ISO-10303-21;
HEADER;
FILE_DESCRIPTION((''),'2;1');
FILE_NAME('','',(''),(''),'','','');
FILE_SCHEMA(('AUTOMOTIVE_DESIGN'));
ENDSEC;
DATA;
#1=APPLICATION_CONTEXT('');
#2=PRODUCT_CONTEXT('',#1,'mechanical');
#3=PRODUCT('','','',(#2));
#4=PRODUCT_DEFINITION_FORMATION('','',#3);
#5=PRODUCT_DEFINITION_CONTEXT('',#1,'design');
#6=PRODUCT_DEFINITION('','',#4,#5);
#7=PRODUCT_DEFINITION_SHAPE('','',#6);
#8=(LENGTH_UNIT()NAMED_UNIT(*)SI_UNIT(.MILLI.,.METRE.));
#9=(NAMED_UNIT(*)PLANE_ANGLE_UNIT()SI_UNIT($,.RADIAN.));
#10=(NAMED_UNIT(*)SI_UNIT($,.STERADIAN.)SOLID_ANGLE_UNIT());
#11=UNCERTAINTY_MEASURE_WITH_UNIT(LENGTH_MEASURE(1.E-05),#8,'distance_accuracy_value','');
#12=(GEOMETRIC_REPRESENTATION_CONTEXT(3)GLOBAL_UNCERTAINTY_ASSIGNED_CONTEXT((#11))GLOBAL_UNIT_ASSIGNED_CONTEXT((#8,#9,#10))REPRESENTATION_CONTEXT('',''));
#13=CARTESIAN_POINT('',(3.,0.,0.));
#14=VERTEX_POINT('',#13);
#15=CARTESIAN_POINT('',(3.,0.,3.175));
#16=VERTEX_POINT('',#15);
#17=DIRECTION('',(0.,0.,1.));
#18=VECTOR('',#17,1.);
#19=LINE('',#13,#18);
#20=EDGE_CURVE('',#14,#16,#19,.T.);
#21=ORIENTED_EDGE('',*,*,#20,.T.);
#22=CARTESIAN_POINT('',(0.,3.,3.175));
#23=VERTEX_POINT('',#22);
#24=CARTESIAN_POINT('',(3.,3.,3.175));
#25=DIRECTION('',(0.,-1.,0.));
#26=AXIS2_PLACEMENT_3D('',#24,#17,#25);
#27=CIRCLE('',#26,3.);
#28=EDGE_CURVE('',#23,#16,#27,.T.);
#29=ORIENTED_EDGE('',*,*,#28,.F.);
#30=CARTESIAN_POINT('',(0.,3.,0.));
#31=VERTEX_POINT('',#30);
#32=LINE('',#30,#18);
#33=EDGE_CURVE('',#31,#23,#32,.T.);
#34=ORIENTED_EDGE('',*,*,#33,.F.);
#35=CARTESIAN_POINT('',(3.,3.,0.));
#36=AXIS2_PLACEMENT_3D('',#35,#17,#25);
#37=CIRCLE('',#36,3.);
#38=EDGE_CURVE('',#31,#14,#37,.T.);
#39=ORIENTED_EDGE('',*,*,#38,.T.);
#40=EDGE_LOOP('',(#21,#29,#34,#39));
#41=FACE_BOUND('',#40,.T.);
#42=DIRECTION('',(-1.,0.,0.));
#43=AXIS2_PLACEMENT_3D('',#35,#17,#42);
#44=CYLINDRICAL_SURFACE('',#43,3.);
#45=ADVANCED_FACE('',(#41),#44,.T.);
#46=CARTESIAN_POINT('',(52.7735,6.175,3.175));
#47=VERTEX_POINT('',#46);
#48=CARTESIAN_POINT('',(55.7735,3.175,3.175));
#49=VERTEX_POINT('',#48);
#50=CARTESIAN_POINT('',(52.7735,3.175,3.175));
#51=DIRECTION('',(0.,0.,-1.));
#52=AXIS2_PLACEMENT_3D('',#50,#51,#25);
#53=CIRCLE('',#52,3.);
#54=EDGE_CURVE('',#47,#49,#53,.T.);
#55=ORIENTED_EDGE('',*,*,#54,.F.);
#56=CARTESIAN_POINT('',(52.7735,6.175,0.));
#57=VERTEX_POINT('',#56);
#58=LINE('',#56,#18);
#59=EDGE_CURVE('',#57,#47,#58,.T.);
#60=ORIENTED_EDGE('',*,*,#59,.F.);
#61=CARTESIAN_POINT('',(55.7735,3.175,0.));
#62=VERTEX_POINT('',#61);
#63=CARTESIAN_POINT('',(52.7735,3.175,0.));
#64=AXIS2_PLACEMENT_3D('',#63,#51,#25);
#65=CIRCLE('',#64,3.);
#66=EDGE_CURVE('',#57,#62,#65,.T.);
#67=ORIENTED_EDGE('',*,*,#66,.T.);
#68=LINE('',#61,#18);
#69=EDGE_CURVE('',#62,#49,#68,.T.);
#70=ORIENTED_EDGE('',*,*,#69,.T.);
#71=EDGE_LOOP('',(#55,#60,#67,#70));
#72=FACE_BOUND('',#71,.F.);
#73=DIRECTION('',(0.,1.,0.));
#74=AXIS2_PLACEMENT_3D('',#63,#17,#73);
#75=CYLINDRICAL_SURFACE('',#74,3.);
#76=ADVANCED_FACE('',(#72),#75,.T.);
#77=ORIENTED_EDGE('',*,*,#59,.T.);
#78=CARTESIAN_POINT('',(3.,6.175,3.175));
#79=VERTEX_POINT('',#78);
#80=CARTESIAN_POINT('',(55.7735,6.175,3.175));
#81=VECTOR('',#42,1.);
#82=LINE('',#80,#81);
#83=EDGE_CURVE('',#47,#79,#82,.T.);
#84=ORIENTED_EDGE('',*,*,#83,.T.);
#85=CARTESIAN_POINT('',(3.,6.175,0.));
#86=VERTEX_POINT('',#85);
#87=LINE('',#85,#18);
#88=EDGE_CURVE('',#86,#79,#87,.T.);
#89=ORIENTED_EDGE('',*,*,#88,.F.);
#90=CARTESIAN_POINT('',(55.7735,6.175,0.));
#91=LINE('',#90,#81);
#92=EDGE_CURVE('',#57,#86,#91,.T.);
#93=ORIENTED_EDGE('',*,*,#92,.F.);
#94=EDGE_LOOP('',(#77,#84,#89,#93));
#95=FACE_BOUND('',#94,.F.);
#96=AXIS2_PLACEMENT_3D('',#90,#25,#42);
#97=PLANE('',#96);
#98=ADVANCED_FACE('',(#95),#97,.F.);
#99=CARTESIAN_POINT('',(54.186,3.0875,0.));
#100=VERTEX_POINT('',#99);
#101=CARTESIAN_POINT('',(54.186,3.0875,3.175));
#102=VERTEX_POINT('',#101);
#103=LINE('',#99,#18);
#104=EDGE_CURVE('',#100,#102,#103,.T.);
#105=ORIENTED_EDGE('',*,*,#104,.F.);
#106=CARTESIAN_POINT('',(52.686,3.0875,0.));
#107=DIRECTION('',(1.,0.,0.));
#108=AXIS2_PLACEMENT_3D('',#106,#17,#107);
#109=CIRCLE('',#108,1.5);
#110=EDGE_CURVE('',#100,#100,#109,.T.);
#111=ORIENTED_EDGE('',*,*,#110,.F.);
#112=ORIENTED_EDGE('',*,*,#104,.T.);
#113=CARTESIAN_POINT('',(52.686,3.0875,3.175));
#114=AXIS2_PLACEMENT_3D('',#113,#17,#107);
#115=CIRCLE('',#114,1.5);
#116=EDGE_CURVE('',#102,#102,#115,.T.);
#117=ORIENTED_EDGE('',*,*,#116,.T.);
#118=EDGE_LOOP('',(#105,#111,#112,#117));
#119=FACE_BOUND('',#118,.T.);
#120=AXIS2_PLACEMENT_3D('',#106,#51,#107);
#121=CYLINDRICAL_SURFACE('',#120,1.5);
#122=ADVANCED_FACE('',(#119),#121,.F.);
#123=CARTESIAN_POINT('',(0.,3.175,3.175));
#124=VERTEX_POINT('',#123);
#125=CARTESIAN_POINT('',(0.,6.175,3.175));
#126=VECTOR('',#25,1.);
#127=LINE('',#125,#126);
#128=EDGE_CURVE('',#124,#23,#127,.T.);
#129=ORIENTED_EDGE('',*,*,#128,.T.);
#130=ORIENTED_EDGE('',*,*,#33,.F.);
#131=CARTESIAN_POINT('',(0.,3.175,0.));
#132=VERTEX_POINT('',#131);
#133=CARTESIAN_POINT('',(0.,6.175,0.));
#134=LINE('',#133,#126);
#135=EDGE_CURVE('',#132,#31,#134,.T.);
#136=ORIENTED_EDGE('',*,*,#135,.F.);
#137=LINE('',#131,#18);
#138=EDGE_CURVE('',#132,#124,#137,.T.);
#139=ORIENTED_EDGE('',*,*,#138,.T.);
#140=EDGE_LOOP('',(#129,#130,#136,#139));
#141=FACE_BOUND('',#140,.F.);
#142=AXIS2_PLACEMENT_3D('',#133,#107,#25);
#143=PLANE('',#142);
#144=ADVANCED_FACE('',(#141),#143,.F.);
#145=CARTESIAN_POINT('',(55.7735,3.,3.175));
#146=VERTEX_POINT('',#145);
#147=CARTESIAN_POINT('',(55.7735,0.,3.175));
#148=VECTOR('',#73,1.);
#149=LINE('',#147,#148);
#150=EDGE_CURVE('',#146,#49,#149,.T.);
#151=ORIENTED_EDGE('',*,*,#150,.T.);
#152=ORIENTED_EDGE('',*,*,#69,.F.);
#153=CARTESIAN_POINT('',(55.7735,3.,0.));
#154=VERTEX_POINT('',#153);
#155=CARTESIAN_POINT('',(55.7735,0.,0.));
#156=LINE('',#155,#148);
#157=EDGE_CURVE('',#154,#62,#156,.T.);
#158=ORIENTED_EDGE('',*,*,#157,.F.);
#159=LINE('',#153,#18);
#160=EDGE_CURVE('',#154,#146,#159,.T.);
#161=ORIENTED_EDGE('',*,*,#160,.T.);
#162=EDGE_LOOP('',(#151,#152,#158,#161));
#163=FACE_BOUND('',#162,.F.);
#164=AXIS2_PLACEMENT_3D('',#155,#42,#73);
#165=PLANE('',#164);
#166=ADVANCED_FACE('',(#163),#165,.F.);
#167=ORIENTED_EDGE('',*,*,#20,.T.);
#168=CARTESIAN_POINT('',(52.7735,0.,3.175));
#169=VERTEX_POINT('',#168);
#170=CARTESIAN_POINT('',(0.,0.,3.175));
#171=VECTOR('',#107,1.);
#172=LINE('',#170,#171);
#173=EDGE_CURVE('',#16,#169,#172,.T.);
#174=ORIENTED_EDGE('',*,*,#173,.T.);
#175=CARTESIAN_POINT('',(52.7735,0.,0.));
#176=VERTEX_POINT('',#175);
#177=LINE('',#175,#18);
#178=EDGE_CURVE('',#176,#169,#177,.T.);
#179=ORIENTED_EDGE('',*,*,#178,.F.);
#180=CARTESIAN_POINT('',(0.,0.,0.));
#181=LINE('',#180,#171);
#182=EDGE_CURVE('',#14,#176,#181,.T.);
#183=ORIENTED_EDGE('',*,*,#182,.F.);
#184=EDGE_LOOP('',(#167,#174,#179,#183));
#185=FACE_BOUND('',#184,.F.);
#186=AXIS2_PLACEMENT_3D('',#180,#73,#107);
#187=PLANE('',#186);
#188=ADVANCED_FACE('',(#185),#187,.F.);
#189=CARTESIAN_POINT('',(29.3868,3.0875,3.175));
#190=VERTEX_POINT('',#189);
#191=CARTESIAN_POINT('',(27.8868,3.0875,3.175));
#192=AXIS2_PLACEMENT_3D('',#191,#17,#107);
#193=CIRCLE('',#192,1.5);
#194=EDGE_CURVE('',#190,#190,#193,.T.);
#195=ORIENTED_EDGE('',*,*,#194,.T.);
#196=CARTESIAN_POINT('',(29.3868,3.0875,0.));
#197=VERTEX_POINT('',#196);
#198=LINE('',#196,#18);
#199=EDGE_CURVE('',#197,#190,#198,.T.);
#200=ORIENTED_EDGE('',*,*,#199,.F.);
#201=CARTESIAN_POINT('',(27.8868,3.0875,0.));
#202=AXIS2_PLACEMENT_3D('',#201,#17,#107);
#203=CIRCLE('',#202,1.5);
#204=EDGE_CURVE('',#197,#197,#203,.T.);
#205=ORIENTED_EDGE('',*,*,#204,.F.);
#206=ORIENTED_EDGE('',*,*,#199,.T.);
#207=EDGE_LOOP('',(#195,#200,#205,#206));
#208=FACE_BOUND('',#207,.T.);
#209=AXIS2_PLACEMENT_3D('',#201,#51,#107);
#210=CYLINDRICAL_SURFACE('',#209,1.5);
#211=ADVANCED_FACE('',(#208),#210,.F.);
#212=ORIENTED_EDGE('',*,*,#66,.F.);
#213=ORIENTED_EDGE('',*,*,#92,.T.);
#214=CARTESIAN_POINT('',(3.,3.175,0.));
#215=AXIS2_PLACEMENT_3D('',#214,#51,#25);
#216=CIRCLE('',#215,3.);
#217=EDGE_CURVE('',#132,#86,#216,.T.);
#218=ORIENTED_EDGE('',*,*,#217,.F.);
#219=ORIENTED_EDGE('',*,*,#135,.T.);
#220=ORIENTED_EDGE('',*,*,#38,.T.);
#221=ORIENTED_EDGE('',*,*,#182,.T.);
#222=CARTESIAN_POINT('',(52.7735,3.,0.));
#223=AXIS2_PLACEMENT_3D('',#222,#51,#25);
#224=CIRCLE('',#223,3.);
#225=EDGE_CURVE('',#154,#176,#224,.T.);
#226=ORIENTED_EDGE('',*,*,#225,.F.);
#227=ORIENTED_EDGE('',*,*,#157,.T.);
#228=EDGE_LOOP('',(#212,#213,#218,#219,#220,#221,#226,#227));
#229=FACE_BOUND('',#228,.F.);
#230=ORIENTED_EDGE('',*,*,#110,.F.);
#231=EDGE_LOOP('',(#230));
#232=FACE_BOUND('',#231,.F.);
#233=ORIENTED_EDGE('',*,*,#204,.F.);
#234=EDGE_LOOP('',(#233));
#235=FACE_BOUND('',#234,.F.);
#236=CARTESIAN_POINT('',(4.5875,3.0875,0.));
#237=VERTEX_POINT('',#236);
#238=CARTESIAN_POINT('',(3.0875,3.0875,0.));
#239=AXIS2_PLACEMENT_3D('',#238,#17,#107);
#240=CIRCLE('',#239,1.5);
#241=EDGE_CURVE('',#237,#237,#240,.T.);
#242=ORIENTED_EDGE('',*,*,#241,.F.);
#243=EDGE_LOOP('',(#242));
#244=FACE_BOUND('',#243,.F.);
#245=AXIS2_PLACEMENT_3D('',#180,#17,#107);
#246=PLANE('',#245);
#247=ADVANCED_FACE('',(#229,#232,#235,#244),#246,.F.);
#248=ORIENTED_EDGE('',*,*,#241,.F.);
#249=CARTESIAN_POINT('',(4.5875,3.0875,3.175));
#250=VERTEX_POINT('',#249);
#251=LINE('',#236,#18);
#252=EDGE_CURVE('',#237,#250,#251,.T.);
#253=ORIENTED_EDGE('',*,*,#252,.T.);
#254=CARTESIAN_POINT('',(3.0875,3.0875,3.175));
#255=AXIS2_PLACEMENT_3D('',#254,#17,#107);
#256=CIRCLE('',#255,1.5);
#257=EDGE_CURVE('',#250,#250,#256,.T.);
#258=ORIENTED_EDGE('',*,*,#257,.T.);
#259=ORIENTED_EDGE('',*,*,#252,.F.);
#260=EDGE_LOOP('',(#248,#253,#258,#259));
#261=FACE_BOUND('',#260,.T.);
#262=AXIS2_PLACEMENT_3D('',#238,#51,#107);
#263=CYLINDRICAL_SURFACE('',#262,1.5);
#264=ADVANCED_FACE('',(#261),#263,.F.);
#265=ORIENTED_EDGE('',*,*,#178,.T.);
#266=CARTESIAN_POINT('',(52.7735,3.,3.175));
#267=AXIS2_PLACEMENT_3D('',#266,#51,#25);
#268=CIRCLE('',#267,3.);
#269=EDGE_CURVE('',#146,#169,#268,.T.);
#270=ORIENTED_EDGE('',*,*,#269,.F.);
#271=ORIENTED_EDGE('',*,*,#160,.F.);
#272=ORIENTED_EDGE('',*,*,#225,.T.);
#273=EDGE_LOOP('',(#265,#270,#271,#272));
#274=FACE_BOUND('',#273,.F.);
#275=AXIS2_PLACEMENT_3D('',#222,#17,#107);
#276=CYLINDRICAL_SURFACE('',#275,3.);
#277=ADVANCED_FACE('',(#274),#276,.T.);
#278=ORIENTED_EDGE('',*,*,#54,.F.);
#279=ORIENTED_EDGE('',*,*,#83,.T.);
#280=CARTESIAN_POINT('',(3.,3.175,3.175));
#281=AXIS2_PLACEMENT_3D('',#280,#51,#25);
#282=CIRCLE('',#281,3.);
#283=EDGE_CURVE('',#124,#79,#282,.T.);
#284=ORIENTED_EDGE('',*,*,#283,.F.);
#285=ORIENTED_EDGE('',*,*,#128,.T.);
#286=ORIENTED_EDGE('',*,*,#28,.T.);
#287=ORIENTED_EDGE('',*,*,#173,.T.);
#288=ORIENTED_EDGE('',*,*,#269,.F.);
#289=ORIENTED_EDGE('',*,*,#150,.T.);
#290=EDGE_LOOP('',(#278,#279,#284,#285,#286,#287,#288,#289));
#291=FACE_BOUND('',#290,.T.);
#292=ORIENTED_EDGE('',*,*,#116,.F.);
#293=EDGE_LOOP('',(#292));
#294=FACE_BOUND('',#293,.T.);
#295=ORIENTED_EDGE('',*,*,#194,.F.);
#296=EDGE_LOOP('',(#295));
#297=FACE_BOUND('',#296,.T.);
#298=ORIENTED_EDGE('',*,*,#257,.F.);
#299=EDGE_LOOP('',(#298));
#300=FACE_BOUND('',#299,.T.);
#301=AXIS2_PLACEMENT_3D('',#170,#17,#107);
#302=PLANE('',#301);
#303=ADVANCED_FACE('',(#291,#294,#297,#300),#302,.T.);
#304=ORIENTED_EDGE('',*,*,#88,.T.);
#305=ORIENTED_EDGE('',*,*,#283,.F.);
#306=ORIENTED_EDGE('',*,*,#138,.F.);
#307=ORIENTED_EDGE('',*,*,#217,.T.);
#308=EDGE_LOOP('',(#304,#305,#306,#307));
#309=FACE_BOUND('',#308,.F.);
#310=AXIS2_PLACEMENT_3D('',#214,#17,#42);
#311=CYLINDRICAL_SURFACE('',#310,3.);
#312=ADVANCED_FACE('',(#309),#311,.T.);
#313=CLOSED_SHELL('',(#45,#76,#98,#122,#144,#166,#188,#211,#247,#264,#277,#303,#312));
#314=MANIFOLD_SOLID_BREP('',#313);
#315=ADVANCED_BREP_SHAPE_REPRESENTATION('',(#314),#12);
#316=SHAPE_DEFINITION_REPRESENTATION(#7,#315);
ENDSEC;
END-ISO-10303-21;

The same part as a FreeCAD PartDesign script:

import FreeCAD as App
import Part
import Sketcher
Q = App.Units.Quantity


def edges_at(feature, points):
    """Names of the edges that pass closest to the given points."""
    edges = feature.Shape.Edges
    near = lambda p: min(range(len(edges)), key=lambda i: edges[i].distToShape(Part.Vertex(*p))[0])
    return sorted({f"Edge{near(p) + 1}" for p in points})


def add_polygon(sketch, points):
    """Adds a closed chain of lines whose ends are joined by coincident constraints."""
    first, n = sketch.GeometryCount, len(points)
    for a, b in zip(points, points[1:] + points[:1]):
        sketch.addGeometry(Part.LineSegment(App.Vector(*a, 0), App.Vector(*b, 0)), False)
    for i in range(n):
        sketch.addConstraint(Sketcher.Constraint("Coincident", first + i, 2, first + (i + 1) % n, 1))

doc = App.newDocument("Part")
body = doc.addObject("PartDesign::Body", "Body")

# Sketch on XY plane
sketch1 = doc.addObject("Sketcher::SketchObject", "Sketch")
body.addObject(sketch1)
sketch1.AttachmentSupport = (doc.XY_Plane, [""])
sketch1.MapMode = "FlatFace"
add_polygon(sketch1, [(0, 6.2), (0, 0), (55.8, 0), (55.8, 6.2)])  # lines 0-3
sketch1.addGeometry(Part.Circle(App.Vector(3.1, 3.1, 0), App.Vector(0, 0, 1), 1.5), False)  # 4
sketch1.addGeometry(Part.Circle(App.Vector(27.9, 3.1, 0), App.Vector(0, 0, 1), 1.5), False)  # 5
sketch1.addGeometry(Part.Circle(App.Vector(52.7, 3.1, 0), App.Vector(0, 0, 1), 1.5), False)  # 6
sketch1.addConstraint([
    Sketcher.Constraint("Vertical", 0),
    Sketcher.Constraint("Horizontal", 1),
    Sketcher.Constraint("Vertical", 2),
    Sketcher.Constraint("Horizontal", 3),
    Sketcher.Constraint("Coincident", 0, 2, -1, 1),
    Sketcher.Constraint("Equal", 4, 5),
    Sketcher.Constraint("Equal", 5, 6),
    Sketcher.Constraint("Horizontal", 4, 3, 5, 3),
    Sketcher.Constraint("Horizontal", 5, 3, 6, 3),
    Sketcher.Constraint("Diameter", 4, Q("0.1181 in")),
    Sketcher.Constraint("DistanceY", 0, 2, 0, 1, Q("0.2431 in")),
    Sketcher.Constraint("DistanceX", 4, 3, 6, 3, Q("1.9527 in")),
    Sketcher.Constraint("DistanceX", 1, 1, 1, 2, Q("2.1958 in")),
    Sketcher.Constraint("DistanceX", -1, 1, 5, 3, Q("1.0979 in")),
    Sketcher.Constraint("DistanceX", -1, 1, 4, 3, Q("3.0875 mm")),
    Sketcher.Constraint("DistanceY", -1, 1, 4, 3, Q("3.0875 mm")),
])
pad1 = doc.addObject("PartDesign::Pad", "Pad")
body.addObject(pad1)
pad1.Profile = sketch1
pad1.Length = Q("0.125 in")
doc.recompute()

fillet = doc.addObject("PartDesign::Fillet", "Fillet")
body.addObject(fillet)
fillet.Base = (pad1, edges_at(pad1, [
    (0, 6.175, 1.587),
    (0, 0, 1.587),
    (55.773, 6.175, 1.587),
    (55.773, 0, 1.587),
]))
fillet.Radius = Q("0.1181102 in")

doc.recompute()
